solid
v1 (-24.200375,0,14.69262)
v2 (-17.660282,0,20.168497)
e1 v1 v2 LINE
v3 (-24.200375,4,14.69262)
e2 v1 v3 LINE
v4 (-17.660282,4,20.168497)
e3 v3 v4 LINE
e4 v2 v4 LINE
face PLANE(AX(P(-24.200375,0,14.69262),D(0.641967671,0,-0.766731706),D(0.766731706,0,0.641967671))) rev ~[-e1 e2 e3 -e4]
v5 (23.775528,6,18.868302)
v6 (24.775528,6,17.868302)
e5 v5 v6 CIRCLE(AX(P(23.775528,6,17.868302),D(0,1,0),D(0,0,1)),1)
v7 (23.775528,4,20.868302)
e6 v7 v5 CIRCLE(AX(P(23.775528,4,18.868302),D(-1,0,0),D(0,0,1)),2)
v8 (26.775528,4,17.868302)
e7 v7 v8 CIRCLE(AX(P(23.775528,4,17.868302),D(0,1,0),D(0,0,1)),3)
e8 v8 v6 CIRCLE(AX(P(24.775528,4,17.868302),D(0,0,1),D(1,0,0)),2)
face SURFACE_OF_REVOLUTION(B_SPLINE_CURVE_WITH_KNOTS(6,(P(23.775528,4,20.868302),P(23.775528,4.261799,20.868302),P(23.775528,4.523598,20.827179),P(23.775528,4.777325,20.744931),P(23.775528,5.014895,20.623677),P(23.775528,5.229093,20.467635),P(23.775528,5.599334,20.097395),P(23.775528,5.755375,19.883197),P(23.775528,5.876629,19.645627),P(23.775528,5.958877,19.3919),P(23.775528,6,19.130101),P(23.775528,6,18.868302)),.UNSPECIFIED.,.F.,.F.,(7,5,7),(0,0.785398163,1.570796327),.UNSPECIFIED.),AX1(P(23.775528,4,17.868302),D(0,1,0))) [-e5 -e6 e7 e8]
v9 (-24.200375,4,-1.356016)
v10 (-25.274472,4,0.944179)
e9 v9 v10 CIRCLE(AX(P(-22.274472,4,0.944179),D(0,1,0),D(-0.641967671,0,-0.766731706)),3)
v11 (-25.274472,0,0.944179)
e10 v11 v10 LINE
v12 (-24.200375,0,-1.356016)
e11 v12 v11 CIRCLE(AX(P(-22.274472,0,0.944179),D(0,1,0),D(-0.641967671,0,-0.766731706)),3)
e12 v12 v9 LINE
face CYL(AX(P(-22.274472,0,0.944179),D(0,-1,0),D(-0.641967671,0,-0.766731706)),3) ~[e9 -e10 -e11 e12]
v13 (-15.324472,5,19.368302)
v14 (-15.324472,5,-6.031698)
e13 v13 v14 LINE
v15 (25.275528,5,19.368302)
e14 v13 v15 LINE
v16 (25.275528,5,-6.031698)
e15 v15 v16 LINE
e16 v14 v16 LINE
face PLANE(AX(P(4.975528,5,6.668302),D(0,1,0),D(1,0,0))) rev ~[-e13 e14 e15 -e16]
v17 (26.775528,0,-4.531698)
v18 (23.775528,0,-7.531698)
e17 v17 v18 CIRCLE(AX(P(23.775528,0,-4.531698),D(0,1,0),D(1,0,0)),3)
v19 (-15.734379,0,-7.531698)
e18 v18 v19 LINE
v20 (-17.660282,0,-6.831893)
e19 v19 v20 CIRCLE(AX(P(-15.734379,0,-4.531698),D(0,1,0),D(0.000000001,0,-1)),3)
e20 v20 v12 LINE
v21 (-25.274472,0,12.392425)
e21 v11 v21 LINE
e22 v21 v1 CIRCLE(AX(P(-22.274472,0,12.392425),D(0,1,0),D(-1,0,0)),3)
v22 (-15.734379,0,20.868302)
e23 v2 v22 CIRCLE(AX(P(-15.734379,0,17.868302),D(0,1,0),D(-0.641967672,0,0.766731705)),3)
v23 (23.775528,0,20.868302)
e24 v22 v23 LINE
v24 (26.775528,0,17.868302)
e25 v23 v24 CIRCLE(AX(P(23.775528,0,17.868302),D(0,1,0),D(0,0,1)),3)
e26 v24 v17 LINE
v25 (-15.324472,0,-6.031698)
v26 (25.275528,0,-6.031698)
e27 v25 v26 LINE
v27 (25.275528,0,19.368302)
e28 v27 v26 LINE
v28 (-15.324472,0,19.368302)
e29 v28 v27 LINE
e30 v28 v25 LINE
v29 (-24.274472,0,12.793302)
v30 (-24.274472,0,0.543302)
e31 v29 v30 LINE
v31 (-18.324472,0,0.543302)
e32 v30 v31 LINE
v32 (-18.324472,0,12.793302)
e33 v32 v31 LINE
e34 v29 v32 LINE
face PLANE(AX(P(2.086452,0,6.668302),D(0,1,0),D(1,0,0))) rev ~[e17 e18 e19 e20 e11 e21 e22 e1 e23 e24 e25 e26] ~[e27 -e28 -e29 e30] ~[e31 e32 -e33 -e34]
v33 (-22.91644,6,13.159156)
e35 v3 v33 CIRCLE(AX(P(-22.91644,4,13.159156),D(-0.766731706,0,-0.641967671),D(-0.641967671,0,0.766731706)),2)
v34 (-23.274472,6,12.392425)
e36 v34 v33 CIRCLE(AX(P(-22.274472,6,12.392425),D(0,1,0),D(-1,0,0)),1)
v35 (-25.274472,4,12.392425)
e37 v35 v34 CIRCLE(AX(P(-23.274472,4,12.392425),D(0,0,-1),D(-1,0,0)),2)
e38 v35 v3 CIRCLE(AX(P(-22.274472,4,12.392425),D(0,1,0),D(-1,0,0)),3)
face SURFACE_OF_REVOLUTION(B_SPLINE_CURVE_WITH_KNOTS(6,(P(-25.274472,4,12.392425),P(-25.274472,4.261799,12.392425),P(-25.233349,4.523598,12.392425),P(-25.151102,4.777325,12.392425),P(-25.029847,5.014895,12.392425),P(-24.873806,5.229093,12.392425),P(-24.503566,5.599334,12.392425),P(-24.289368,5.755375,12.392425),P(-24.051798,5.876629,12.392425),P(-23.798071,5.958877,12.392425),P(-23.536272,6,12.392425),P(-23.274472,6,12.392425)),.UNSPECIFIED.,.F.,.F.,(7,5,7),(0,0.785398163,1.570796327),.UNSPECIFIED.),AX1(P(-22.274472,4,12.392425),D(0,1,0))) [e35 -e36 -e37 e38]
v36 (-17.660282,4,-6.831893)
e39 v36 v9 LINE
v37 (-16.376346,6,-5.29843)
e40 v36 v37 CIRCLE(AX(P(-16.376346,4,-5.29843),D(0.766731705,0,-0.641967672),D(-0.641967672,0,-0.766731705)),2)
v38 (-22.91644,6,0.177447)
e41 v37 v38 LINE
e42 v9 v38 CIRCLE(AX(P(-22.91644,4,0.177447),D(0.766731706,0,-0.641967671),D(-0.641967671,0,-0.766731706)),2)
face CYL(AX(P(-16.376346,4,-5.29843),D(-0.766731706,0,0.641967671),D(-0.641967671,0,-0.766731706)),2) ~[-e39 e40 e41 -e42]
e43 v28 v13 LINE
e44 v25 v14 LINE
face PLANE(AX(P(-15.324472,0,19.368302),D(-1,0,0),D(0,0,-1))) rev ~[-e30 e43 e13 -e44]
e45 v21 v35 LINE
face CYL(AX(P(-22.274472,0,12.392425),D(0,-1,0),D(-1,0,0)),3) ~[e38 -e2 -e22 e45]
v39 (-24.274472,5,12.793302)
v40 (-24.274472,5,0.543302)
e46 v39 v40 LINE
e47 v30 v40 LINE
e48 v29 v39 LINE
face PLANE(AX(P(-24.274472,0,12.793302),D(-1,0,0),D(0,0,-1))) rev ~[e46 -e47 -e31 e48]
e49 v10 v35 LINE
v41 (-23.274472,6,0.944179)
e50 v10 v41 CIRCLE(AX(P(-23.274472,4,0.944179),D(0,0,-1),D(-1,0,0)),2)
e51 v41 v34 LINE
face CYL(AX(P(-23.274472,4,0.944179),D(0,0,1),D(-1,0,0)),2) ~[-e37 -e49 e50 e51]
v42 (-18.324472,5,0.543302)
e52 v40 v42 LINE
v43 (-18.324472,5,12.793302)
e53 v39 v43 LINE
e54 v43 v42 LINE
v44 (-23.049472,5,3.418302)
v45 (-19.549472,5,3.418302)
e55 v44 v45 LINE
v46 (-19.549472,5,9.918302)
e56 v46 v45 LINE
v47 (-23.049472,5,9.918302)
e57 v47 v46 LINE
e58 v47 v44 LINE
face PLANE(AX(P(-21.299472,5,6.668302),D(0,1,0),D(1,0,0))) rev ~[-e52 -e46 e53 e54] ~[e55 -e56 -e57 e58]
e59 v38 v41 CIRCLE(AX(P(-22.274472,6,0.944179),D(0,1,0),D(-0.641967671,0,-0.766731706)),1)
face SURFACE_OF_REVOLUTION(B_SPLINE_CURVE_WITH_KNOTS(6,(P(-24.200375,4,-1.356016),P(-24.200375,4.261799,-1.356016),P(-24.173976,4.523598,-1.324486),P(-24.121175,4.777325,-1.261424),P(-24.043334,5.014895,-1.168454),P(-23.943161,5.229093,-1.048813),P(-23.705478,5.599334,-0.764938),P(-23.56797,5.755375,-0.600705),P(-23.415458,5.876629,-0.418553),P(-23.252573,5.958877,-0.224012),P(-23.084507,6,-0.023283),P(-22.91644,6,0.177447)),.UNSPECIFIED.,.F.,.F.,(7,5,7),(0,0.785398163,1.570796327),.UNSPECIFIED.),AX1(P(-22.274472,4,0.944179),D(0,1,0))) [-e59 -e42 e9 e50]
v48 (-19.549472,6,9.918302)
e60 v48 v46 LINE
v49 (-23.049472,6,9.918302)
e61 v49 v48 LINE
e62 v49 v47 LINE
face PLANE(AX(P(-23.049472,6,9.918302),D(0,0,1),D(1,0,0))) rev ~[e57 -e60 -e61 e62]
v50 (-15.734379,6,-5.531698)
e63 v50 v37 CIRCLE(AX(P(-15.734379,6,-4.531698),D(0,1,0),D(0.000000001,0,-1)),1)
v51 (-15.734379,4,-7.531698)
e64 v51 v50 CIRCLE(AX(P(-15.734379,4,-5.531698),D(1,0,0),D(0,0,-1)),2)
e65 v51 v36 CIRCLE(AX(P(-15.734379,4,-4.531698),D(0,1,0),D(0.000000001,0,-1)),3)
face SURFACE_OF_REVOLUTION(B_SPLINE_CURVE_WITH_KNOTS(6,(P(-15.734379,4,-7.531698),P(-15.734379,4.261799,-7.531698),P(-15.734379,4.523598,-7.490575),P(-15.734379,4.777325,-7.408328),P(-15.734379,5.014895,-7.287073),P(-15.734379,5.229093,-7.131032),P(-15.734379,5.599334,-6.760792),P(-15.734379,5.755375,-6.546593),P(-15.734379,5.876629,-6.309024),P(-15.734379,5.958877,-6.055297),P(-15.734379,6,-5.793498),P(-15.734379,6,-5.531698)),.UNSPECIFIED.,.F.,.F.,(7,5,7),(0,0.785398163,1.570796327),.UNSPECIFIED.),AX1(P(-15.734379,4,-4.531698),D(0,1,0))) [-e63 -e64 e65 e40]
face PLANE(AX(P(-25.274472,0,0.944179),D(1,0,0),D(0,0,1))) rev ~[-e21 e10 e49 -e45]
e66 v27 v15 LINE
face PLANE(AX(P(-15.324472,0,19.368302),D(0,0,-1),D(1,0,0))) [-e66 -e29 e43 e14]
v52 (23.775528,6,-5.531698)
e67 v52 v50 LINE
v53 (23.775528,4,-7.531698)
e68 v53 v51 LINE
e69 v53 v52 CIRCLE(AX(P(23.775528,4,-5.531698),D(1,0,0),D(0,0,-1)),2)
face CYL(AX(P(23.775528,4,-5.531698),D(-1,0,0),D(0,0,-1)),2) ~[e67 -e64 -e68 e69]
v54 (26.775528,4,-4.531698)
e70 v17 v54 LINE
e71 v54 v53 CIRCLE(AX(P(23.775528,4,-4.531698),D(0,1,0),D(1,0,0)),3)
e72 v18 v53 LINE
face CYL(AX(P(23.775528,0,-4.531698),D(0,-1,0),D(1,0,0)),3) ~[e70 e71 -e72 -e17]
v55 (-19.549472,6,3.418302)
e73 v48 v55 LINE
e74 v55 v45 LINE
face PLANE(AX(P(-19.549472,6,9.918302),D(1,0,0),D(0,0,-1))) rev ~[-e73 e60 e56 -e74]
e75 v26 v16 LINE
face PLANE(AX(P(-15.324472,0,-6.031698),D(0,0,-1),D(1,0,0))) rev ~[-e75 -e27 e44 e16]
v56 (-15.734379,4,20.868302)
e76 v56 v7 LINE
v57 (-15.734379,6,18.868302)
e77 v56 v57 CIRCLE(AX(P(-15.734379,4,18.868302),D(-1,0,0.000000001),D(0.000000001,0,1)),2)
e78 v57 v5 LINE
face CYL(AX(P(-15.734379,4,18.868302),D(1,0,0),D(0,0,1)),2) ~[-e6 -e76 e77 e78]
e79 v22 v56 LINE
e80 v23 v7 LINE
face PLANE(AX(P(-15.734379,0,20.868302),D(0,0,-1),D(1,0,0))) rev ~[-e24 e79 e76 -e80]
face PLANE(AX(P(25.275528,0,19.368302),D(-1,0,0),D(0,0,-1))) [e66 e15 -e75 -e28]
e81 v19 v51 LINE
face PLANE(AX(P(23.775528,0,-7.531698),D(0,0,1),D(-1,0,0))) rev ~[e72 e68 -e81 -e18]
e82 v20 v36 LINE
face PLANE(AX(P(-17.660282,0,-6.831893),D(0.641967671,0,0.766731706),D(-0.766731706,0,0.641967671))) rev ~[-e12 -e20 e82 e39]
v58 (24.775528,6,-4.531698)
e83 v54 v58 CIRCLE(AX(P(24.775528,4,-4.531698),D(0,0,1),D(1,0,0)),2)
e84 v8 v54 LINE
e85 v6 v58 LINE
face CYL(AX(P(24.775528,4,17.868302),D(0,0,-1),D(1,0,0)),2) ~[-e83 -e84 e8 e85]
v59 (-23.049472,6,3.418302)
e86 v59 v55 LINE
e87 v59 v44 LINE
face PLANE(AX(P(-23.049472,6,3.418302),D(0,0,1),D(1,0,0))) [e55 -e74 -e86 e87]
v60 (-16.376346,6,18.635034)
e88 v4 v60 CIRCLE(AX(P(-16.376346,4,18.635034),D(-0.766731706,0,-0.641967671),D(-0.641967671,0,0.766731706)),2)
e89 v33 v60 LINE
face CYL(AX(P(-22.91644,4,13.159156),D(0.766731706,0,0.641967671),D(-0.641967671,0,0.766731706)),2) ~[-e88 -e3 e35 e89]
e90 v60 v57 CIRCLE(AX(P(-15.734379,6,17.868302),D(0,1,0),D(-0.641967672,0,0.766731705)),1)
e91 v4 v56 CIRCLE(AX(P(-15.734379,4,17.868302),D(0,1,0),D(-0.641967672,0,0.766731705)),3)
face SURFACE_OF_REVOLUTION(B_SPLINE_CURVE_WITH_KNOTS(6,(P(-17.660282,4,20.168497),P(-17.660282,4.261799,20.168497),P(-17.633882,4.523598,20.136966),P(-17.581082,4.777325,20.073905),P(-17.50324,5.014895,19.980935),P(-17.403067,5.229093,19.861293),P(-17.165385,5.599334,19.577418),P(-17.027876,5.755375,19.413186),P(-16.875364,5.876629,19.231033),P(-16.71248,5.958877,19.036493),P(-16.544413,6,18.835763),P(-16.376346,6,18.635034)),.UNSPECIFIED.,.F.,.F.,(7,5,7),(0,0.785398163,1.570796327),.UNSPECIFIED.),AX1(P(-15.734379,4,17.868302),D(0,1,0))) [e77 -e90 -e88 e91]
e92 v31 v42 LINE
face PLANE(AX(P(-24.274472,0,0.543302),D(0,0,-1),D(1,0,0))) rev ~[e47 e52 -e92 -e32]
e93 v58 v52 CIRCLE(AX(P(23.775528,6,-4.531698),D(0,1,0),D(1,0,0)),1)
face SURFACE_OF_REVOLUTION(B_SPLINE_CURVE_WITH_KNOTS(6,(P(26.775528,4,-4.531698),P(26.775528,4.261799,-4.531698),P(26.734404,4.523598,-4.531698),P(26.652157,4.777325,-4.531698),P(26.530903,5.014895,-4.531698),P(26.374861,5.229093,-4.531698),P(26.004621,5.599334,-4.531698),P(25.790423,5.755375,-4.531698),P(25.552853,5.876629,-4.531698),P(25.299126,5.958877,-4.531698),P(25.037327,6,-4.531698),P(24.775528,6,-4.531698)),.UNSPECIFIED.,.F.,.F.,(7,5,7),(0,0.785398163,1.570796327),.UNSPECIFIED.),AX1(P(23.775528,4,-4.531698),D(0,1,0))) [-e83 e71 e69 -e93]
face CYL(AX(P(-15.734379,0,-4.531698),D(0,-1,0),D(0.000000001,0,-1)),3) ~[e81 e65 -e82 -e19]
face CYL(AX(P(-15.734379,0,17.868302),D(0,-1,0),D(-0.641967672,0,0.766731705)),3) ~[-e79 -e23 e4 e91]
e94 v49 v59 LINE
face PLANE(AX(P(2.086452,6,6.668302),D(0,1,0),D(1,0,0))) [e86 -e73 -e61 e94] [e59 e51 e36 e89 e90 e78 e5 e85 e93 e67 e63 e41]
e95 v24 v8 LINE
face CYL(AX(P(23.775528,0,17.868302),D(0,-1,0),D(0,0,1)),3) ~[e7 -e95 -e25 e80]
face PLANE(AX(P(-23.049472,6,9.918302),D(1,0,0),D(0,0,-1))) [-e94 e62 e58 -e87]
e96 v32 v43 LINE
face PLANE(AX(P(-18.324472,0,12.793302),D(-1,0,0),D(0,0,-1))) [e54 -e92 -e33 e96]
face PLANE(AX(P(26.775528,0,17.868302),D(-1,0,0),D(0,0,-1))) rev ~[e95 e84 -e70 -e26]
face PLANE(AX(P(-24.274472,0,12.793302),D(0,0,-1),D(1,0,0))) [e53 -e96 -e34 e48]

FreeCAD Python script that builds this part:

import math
import FreeCAD as App
import Part
import Sketcher
from FreeCAD import Vector


def edges_at(feature, points):
    """Names of the edges that pass closest to the given points."""
    edges = feature.Shape.Edges
    near = lambda p: min(range(len(edges)), key=lambda i: edges[i].distToShape(Part.Vertex(*p))[0])
    return sorted({f"Edge{near(p) + 1}" for p in points})


def add_polygon(sketch, points):
    """Adds a closed chain of lines whose ends are joined by coincident constraints."""
    first, n = sketch.GeometryCount, len(points)
    for a, b in zip(points, points[1:] + points[:1]):
        sketch.addGeometry(Part.LineSegment(App.Vector(*a, 0), App.Vector(*b, 0)), False)
    for i in range(n):
        sketch.addConstraint(Sketcher.Constraint("Coincident", first + i, 2, first + (i + 1) % n, 1))

doc = App.newDocument("Part")
body = doc.addObject("PartDesign::Body", "Body")

sketch1 = doc.addObject("Sketcher::SketchObject", "Sketch")
body.addObject(sketch1)
sketch1.AttachmentSupport = (doc.XZ_Plane, [""])
sketch1.MapMode = "FlatFace"
sketch1.addGeometry(Part.LineSegment(Vector(26.8, 17.9, 0), Vector(26.8, -4.5, 0)), False)
sketch1.addGeometry(Part.ArcOfCircle(Part.Circle(Vector(23.8, -4.5, 0), Vector(0, 0, 1), 3), math.radians(-90), math.radians(0)), False)
sketch1.addGeometry(Part.LineSegment(Vector(23.8, -7.5, 0), Vector(-15.7, -7.5, 0)), False)
sketch1.addGeometry(Part.ArcOfCircle(Part.Circle(Vector(-15.7, -4.5, 0), Vector(0, 0, 1), 3), math.radians(-130), math.radians(-90)), False)
sketch1.addGeometry(Part.LineSegment(Vector(-17.7, -6.8, 0), Vector(-24.2, -1.4, 0)), False)
sketch1.addGeometry(Part.ArcOfCircle(Part.Circle(Vector(-22.3, 0.9, 0), Vector(0, 0, 1), 3), math.radians(180), math.radians(230)), False)
sketch1.addGeometry(Part.LineSegment(Vector(-25.3, 0.9, 0), Vector(-25.3, 12.4, 0)), False)
sketch1.addGeometry(Part.ArcOfCircle(Part.Circle(Vector(-22.3, 12.4, 0), Vector(0, 0, 1), 3), math.radians(130), math.radians(180)), False)
sketch1.addGeometry(Part.LineSegment(Vector(-24.2, 14.7, 0), Vector(-17.7, 20.2, 0)), False)
sketch1.addGeometry(Part.ArcOfCircle(Part.Circle(Vector(-15.7, 17.9, 0), Vector(0, 0, 1), 3), math.radians(90), math.radians(130)), False)
sketch1.addGeometry(Part.LineSegment(Vector(-15.7, 20.9, 0), Vector(23.8, 20.9, 0)), False)
sketch1.addGeometry(Part.ArcOfCircle(Part.Circle(Vector(23.8, 17.9, 0), Vector(0, 0, 1), 3), math.radians(0), math.radians(90)), False)
sketch1.addConstraint(Sketcher.Constraint("Tangent", 0, 2, 1, 2))
sketch1.addConstraint(Sketcher.Constraint("Tangent", 1, 1, 2, 1))
sketch1.addConstraint(Sketcher.Constraint("Tangent", 2, 2, 3, 2))
sketch1.addConstraint(Sketcher.Constraint("Tangent", 3, 1, 4, 1))
sketch1.addConstraint(Sketcher.Constraint("Tangent", 4, 2, 5, 2))
sketch1.addConstraint(Sketcher.Constraint("Tangent", 5, 1, 6, 1))
sketch1.addConstraint(Sketcher.Constraint("Tangent", 6, 2, 7, 2))
sketch1.addConstraint(Sketcher.Constraint("Tangent", 7, 1, 8, 1))
sketch1.addConstraint(Sketcher.Constraint("Tangent", 8, 2, 9, 2))
sketch1.addConstraint(Sketcher.Constraint("Tangent", 9, 1, 10, 1))
sketch1.addConstraint(Sketcher.Constraint("Tangent", 10, 2, 11, 2))
sketch1.addConstraint(Sketcher.Constraint("Tangent", 11, 1, 0, 1))
sketch1.addConstraint(Sketcher.Constraint("Vertical", 0))
sketch1.addConstraint(Sketcher.Constraint("Horizontal", 2))
sketch1.addConstraint(Sketcher.Constraint("Vertical", 6))
sketch1.addConstraint(Sketcher.Constraint("Horizontal", 10))
sketch1.addConstraint(Sketcher.Constraint("Equal", 1, 3))
sketch1.addConstraint(Sketcher.Constraint("Equal", 3, 5))
sketch1.addConstraint(Sketcher.Constraint("Equal", 5, 7))
sketch1.addConstraint(Sketcher.Constraint("Equal", 7, 9))
sketch1.addConstraint(Sketcher.Constraint("Equal", 9, 11))
sketch1.addConstraint(Sketcher.Constraint("Vertical", 3, 3, 9, 3))
sketch1.addConstraint(Sketcher.Constraint("Vertical", 4, 2, 7, 1))
sketch1.addConstraint(Sketcher.Constraint("Radius", 1, 3.0))
sketch1.addConstraint(Sketcher.Constraint("DistanceY", 0, 2, 0, 1, 22.4))
sketch1.addConstraint(Sketcher.Constraint("DistanceX", 5, 3, 1, 3, 46.05))
sketch1.addConstraint(Sketcher.Constraint("DistanceY", 1, 3, -1, 1, 4.531698))
sketch1.addConstraint(Sketcher.Constraint("DistanceX", 2, 2, 2, 1, 39.509906))
sketch1.addConstraint(Sketcher.Constraint("DistanceY", 6, 1, 6, 2, 11.448246))
sketch1.addConstraint(Sketcher.Constraint("DistanceX", 3, 3, -1, 1, 15.734379))
pad1 = doc.addObject("PartDesign::Pad", "Pad")
body.addObject(pad1)
pad1.Profile = sketch1
pad1.Length = 6
pad1.Reversed = True

sketch2 = doc.addObject("Sketcher::SketchObject", "Sketch001")
body.addObject(sketch2)
sketch2.AttachmentSupport = (doc.XZ_Plane, [""])
sketch2.MapMode = "FlatFace"
add_polygon(sketch2, [(-15, -6), (-15, 19), (25, 19), (25, -6)])
add_polygon(sketch2, [(-24, 1), (-24, 13), (-18, 13), (-18, 1)])
sketch2.addConstraint(Sketcher.Constraint("Vertical", 0))
sketch2.addConstraint(Sketcher.Constraint("Horizontal", 1))
sketch2.addConstraint(Sketcher.Constraint("Vertical", 2))
sketch2.addConstraint(Sketcher.Constraint("Horizontal", 3))
sketch2.addConstraint(Sketcher.Constraint("Vertical", 4))
sketch2.addConstraint(Sketcher.Constraint("Horizontal", 5))
sketch2.addConstraint(Sketcher.Constraint("Vertical", 6))
sketch2.addConstraint(Sketcher.Constraint("Horizontal", 7))
sketch2.addConstraint(Sketcher.Constraint("DistanceX", 1, 1, 1, 2, 40.6))
sketch2.addConstraint(Sketcher.Constraint("DistanceY", 0, 1, 0, 2, 25.4))
sketch2.addConstraint(Sketcher.Constraint("DistanceX", 5, 2, 0, 2, 3.0))
sketch2.addConstraint(Sketcher.Constraint("DistanceX", 5, 1, 5, 2, 5.95))
sketch2.addConstraint(Sketcher.Constraint("DistanceY", 4, 1, 4, 2, 12.25))
sketch2.addConstraint(Sketcher.Constraint("DistanceY", 4, 2, 0, 2, 6.575))
sketch2.addConstraint(Sketcher.Constraint("DistanceY", -1, 1, 0, 2, 19.368302))
sketch2.addConstraint(Sketcher.Constraint("DistanceX", 0, 2, -1, 1, 15.324472))
pocket1 = doc.addObject("PartDesign::Pocket", "Pocket")
body.addObject(pocket1)
pocket1.Profile = sketch2
pocket1.Length = 5

sketch3 = doc.addObject("Sketcher::SketchObject", "Sketch002")
body.addObject(sketch3)
sketch3.AttachmentSupport = (doc.XZ_Plane, [""])
sketch3.MapMode = "FlatFace"
sketch3.AttachmentOffset = App.Placement(Vector(0, 0, -6), App.Rotation())
add_polygon(sketch3, [(-23, 3.4), (-23, 9.9), (-19.5, 9.9), (-19.5, 3.4)])
sketch3.addConstraint(Sketcher.Constraint("Vertical", 0))
sketch3.addConstraint(Sketcher.Constraint("Horizontal", 1))
sketch3.addConstraint(Sketcher.Constraint("Vertical", 2))
sketch3.addConstraint(Sketcher.Constraint("Horizontal", 3))
sketch3.addConstraint(Sketcher.Constraint("DistanceX", 1, 1, 1, 2, 3.5))
sketch3.addConstraint(Sketcher.Constraint("DistanceY", 0, 1, 0, 2, 6.5))
sketch3.addConstraint(Sketcher.Constraint("DistanceY", -1, 1, 0, 2, 9.918302))
sketch3.addConstraint(Sketcher.Constraint("DistanceX", 0, 2, -1, 1, 23.049472))
pocket2 = doc.addObject("PartDesign::Pocket", "Pocket001")
body.addObject(pocket2)
pocket2.Profile = sketch3
pocket2.Type = "ThroughAll"
pocket2.Reversed = True
doc.recompute()

fillet = doc.addObject("PartDesign::Fillet", "Fillet")
body.addObject(fillet)
fillet.Base = (pocket2, edges_at(pocket2, [
    (25.897, 6, -6.653),
    (4.021, 6, -7.532),
    (-16.759, 6, -7.351),
    (-20.93, 6, -4.094),
    (-24.993, 6, -0.325),
    (-25.274, 6, 6.668),
    (-24.993, 6, 13.662),
    (-20.93, 6, 17.431),
    (-16.759, 6, 20.688),
    (4.021, 6, 20.868),
    (25.897, 6, 19.99),
    (26.776, 6, 6.668),
]))
fillet.Radius = 2

doc.recompute()
